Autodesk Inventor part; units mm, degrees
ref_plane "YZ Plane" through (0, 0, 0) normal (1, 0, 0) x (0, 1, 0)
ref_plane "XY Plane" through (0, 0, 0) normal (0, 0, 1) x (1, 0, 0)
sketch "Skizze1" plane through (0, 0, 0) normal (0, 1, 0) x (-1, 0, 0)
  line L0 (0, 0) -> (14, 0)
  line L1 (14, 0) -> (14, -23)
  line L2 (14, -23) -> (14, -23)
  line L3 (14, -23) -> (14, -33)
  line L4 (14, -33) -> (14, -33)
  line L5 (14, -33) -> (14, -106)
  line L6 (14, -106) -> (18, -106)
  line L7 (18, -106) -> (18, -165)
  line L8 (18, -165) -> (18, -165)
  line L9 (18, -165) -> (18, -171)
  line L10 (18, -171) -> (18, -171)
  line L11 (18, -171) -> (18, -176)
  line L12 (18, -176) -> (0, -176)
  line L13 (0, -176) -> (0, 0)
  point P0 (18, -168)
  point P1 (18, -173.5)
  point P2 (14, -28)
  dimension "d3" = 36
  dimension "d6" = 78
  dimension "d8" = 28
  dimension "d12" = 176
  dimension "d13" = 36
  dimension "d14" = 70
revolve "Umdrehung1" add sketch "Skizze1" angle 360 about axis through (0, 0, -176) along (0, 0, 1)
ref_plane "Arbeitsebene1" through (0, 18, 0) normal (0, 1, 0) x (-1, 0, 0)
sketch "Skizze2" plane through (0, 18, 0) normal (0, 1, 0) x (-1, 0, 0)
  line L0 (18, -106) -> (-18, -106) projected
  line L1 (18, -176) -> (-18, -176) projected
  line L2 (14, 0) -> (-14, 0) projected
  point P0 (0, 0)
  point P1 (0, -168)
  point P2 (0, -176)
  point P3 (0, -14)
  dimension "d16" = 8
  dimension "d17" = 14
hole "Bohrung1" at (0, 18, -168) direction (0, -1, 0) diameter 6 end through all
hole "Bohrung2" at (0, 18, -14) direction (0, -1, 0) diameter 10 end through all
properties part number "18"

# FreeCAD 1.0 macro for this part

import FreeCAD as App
import Part
import Sketcher
from FreeCAD import Vector
Q = App.Units.Quantity

doc = App.newDocument("Part")
body = doc.addObject("PartDesign::Body", "Body")

sketch1 = doc.addObject("Sketcher::SketchObject", "Sketch")
body.addObject(sketch1)
sketch1.AttachmentSupport = (doc.XZ_Plane, [""])
sketch1.MapMode = "FlatFace"
sketch1.addGeometry([
    Part.LineSegment(Vector(-14, 0, 0), Vector(0, 0, 0)),
    Part.LineSegment(Vector(0, 0, 0), Vector(0, -176, 0)),
    Part.LineSegment(Vector(0, -176, 0), Vector(-18, -176, 0)),
    Part.LineSegment(Vector(-18, -176, 0), Vector(-18, -106, 0)),
    Part.LineSegment(Vector(-18, -106, 0), Vector(-14, -106, 0)),
    Part.LineSegment(Vector(-14, -106, 0), Vector(-14, 0, 0)),
], False)
sketch1.addConstraint([
    Sketcher.Constraint("Coincident", 0, 2, 1, 1),
    Sketcher.Constraint("Coincident", 1, 2, 2, 1),
    Sketcher.Constraint("Coincident", 2, 2, 3, 1),
    Sketcher.Constraint("Coincident", 3, 2, 4, 1),
    Sketcher.Constraint("Coincident", 4, 2, 5, 1),
    Sketcher.Constraint("Coincident", 5, 2, 0, 1),
    Sketcher.Constraint("Horizontal", 0),
    Sketcher.Constraint("Vertical", 1),
    Sketcher.Constraint("Horizontal", 2),
    Sketcher.Constraint("Vertical", 3),
    Sketcher.Constraint("Horizontal", 4),
    Sketcher.Constraint("Vertical", 5),
    Sketcher.Constraint("Coincident", 0, 2, -1, 1),
    Sketcher.Constraint("DistanceY", 1, 2, 1, 1, Q("176 mm")),
    Sketcher.Constraint("DistanceY", 3, 1, 3, 2, Q("70 mm")),
    Sketcher.Constraint("DistanceX", 0, 1, 0, 2, Q("14 mm")),
    Sketcher.Constraint("DistanceX", 2, 2, 2, 1, Q("18 mm")),
])
revolution = doc.addObject("PartDesign::Revolution", "Revolution")
body.addObject(revolution)
revolution.Profile = sketch1
revolution.ReferenceAxis = (sketch1, ["V_Axis"])
revolution.Angle = 360

sketch2 = doc.addObject("Sketcher::SketchObject", "Sketch001")
body.addObject(sketch2)
sketch2.AttachmentSupport = (doc.XZ_Plane, [""])
sketch2.MapMode = "FlatFace"
sketch2.AttachmentOffset = App.Placement(Vector(0, 0, -18), App.Rotation())
sketch2.addGeometry(Part.Circle(Vector(0, -168, 0), Vector(0, 0, 1), 3), False)
sketch2.addConstraint([
    Sketcher.Constraint("PointOnObject", 0, 3, -2),
    Sketcher.Constraint("Diameter", 0, Q("6 mm")),
    Sketcher.Constraint("DistanceY", 0, 3, -1, 1, Q("168 mm")),
])
doc.recompute()
hole = doc.addObject("PartDesign::Hole", "Hole")
body.addObject(hole)
hole.Profile = sketch2
hole.ThreadType = "None"
hole.Diameter = 6
hole.DepthType = "ThroughAll"
hole.Reversed = True

sketch3 = doc.addObject("Sketcher::SketchObject", "Sketch002")
body.addObject(sketch3)
sketch3.AttachmentSupport = (doc.XZ_Plane, [""])
sketch3.MapMode = "FlatFace"
sketch3.AttachmentOffset = App.Placement(Vector(0, 0, -18), App.Rotation())
sketch3.addGeometry(Part.Circle(Vector(0, -14, 0), Vector(0, 0, 1), 5), False)
sketch3.addConstraint([
    Sketcher.Constraint("PointOnObject", 0, 3, -2),
    Sketcher.Constraint("Diameter", 0, Q("10 mm")),
    Sketcher.Constraint("DistanceY", 0, 3, -1, 1, Q("14 mm")),
])
doc.recompute()
hole2 = doc.addObject("PartDesign::Hole", "Hole001")
body.addObject(hole2)
hole2.Profile = sketch3
hole2.ThreadType = "None"
hole2.Diameter = 10
hole2.DepthType = "ThroughAll"
hole2.Reversed = True

doc.recompute()
